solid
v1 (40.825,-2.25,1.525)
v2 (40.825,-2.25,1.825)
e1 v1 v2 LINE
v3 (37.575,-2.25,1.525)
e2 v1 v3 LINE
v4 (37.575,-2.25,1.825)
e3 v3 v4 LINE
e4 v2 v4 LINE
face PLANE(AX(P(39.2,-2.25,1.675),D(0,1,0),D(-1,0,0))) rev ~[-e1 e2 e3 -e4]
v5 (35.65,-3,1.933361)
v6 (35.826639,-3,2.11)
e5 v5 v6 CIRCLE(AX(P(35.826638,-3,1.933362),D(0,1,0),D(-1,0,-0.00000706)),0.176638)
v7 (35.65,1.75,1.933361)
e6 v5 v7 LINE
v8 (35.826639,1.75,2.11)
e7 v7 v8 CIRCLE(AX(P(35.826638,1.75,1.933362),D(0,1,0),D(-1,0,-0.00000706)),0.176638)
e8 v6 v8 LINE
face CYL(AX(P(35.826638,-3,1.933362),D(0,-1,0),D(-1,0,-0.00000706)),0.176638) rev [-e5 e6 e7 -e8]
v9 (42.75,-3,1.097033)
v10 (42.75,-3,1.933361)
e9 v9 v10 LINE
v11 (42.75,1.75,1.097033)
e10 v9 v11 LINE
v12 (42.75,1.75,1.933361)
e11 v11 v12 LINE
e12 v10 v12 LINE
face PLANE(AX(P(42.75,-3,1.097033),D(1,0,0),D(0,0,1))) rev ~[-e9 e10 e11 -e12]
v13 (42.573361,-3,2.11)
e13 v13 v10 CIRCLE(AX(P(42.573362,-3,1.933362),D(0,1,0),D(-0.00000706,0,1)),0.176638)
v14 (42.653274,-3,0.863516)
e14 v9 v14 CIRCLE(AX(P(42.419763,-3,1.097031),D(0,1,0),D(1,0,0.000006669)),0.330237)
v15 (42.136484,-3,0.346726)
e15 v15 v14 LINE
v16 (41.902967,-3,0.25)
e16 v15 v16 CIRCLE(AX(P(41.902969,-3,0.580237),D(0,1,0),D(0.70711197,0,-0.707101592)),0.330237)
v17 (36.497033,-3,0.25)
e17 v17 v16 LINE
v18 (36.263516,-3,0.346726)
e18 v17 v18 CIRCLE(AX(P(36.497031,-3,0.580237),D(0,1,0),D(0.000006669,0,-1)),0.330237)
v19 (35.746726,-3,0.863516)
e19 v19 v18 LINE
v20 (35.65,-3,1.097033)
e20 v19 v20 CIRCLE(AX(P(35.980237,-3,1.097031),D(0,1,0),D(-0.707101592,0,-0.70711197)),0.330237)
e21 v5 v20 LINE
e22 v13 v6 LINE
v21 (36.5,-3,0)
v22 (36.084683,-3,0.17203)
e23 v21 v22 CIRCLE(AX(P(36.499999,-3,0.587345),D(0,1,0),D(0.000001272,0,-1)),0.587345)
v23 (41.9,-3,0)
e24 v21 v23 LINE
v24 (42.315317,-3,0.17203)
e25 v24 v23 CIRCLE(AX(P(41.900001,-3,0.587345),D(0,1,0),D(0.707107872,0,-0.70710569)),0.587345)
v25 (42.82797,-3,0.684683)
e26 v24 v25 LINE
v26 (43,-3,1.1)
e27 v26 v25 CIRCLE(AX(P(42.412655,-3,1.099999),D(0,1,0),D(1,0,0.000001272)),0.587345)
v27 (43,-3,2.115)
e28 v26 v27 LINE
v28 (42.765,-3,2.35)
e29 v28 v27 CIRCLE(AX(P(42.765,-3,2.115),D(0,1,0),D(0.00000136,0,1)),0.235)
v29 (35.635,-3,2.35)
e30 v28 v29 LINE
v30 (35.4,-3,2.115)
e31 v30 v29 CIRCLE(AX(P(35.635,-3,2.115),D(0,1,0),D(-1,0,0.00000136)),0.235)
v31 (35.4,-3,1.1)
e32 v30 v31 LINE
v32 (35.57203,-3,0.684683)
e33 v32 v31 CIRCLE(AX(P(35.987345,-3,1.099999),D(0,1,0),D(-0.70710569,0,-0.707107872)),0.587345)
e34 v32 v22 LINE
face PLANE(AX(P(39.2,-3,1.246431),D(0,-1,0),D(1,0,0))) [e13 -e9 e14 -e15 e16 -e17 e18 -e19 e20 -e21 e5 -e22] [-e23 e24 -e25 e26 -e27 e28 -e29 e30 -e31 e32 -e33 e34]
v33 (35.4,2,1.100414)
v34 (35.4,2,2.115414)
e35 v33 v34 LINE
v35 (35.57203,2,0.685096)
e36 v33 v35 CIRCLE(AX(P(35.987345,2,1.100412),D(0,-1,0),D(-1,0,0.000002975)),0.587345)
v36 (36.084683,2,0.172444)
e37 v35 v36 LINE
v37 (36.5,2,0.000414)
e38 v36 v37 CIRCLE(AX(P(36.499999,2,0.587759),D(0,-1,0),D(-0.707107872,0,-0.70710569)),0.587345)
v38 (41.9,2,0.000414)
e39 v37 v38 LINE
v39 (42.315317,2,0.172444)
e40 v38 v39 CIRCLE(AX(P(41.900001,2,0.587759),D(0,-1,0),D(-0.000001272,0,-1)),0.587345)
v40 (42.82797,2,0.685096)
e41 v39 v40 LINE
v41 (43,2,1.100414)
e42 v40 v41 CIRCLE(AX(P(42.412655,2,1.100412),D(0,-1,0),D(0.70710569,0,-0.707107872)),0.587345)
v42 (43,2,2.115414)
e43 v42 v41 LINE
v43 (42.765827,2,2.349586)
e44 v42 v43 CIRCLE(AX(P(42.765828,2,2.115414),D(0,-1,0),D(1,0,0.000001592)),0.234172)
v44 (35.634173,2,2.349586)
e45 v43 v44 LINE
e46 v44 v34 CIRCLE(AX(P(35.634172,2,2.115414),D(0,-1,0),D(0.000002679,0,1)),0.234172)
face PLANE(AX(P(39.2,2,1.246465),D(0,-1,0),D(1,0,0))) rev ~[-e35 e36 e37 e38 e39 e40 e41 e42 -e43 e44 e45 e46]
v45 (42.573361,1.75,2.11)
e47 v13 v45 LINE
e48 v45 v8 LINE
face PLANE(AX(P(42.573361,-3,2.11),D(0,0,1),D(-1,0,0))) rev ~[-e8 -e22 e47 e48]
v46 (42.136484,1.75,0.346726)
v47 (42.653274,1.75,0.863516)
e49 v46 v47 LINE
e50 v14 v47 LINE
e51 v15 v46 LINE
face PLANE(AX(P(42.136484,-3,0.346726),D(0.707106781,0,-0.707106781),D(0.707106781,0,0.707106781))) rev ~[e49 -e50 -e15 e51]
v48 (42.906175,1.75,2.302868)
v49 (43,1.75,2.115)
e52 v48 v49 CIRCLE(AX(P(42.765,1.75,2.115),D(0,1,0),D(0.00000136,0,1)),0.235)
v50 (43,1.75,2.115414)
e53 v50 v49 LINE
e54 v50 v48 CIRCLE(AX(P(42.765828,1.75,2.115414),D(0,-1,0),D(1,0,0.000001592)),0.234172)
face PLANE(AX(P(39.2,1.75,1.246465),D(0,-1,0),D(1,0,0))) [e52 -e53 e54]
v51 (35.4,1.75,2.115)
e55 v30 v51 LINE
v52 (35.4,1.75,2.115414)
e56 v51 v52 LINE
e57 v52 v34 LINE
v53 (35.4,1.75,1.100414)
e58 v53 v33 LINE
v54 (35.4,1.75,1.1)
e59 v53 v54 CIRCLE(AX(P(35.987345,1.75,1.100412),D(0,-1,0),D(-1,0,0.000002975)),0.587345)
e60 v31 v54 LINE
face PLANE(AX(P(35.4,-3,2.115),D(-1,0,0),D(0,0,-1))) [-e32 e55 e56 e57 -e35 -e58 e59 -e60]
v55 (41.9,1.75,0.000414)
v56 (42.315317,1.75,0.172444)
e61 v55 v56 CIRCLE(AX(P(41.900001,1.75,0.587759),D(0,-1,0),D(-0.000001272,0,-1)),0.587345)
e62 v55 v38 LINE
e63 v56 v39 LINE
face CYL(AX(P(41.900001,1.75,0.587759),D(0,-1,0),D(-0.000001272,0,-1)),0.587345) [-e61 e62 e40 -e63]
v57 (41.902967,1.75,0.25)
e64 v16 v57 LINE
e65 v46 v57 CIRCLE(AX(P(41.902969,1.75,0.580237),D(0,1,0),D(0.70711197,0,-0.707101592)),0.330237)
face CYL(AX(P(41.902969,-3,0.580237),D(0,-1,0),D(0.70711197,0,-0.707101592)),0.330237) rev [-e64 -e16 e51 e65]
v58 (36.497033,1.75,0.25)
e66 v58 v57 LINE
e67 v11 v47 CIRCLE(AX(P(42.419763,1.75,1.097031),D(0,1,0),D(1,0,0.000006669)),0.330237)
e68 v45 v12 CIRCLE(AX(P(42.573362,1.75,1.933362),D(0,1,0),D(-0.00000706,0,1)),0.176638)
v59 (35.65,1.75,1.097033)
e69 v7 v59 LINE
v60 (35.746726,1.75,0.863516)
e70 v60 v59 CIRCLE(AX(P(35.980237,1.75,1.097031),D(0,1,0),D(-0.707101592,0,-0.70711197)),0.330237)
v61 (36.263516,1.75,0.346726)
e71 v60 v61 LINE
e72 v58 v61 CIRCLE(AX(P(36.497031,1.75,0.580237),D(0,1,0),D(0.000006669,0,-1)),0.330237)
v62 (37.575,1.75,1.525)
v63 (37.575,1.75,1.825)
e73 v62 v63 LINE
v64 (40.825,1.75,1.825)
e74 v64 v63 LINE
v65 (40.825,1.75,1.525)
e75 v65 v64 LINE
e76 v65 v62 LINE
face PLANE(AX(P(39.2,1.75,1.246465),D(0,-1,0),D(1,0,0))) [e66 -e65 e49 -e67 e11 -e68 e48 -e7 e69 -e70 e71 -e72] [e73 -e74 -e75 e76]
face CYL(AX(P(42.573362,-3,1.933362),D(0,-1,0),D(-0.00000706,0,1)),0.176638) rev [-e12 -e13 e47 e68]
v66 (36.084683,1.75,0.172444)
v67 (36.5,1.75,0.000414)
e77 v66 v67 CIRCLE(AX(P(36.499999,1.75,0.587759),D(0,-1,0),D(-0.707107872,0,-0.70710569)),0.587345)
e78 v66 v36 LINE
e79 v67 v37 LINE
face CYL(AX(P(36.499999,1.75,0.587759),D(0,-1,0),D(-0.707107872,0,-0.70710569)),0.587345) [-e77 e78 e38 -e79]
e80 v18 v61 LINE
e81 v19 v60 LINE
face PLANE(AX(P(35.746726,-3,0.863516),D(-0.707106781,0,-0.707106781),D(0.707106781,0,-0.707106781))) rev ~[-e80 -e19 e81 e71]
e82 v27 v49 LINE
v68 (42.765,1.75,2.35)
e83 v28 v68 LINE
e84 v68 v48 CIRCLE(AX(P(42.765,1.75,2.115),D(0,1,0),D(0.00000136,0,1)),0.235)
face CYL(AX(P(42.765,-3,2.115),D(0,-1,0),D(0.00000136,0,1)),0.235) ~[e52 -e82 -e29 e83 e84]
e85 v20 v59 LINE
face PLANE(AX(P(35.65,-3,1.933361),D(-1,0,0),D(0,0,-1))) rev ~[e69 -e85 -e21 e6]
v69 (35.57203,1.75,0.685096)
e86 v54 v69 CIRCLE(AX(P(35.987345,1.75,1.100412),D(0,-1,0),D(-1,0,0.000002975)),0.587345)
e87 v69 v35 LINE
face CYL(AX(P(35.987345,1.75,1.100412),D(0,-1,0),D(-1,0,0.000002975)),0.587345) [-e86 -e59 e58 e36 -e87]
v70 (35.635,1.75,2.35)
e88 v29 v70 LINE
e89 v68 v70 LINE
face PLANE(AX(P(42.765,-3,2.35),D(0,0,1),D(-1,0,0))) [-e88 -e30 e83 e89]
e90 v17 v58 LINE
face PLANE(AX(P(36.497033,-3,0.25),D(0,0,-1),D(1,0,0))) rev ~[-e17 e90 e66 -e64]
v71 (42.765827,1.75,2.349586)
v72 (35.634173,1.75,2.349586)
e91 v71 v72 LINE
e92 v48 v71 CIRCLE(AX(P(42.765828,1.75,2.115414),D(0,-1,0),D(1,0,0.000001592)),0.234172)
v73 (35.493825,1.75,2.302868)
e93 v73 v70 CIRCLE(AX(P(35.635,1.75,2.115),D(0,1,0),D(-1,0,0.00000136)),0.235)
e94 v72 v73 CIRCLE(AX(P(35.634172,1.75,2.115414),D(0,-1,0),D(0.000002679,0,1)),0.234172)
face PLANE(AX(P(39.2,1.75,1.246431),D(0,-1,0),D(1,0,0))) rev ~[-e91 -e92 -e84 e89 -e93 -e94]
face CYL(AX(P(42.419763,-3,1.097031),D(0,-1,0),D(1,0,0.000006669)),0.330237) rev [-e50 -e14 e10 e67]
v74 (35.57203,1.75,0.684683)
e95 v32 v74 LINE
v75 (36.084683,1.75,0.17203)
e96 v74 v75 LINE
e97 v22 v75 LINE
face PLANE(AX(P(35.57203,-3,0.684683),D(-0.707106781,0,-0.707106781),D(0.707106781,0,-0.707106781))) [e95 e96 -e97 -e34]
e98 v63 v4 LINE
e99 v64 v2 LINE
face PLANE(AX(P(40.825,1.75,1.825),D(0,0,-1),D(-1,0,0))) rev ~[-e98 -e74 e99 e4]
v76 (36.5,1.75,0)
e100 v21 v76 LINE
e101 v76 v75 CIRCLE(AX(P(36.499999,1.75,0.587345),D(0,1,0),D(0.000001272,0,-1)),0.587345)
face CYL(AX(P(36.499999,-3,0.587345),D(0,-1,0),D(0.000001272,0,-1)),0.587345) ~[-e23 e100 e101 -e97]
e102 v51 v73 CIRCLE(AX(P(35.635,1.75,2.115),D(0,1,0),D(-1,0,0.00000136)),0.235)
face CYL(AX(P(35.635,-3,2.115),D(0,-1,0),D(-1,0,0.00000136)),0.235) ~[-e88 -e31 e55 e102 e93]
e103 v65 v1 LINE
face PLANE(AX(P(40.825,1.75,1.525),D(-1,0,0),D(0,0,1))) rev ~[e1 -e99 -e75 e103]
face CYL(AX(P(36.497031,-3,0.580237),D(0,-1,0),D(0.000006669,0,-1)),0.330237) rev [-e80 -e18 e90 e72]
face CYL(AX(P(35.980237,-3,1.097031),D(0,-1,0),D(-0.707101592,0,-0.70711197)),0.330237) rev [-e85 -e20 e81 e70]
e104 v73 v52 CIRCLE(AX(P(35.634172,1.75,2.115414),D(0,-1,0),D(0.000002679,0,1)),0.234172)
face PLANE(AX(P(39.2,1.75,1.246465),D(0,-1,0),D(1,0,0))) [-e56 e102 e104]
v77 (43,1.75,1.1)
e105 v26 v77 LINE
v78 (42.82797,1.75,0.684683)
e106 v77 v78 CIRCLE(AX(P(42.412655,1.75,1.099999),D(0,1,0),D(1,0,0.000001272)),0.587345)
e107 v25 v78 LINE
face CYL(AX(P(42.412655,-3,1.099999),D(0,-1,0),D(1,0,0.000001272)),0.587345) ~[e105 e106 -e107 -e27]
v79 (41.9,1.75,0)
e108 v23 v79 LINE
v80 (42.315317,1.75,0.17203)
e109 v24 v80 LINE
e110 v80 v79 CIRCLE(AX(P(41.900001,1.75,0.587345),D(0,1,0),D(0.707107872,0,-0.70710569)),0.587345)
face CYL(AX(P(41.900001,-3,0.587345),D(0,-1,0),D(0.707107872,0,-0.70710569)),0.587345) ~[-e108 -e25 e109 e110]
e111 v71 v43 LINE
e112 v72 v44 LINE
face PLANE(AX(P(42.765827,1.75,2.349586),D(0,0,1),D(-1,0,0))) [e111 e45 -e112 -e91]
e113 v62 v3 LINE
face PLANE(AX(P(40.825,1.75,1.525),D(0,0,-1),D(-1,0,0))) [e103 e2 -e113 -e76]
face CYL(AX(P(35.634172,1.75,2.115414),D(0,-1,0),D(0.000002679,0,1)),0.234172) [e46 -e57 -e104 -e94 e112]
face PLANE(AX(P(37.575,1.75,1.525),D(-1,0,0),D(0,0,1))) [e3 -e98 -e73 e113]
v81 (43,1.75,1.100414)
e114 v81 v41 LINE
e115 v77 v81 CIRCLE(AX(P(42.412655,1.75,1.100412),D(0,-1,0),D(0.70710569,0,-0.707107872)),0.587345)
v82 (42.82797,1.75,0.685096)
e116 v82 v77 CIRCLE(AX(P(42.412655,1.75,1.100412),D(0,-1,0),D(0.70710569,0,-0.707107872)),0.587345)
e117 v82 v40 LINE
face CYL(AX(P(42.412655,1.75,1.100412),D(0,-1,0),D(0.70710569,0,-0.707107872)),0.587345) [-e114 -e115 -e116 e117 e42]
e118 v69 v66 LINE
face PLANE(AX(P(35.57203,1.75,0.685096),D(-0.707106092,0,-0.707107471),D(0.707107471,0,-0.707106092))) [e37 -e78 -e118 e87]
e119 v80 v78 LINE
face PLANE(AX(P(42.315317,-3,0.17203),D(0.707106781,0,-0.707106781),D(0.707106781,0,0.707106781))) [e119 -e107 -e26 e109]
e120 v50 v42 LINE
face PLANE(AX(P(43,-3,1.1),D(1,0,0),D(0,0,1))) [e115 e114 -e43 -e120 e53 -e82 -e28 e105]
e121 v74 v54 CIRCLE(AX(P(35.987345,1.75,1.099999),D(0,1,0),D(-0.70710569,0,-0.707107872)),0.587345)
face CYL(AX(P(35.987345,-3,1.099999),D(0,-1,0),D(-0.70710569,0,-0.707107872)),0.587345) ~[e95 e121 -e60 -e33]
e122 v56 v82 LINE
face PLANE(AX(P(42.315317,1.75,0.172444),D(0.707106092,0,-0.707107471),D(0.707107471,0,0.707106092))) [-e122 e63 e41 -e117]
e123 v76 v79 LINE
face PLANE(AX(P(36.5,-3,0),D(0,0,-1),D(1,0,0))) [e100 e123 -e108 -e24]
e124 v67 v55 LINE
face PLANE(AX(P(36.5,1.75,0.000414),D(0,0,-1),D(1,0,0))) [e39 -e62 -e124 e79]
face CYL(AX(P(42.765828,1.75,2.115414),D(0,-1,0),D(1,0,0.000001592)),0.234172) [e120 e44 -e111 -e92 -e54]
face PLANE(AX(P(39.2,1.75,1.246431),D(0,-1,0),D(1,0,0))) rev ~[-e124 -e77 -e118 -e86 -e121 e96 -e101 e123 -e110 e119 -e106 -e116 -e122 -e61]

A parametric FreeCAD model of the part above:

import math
import FreeCAD as App
import Part
import Sketcher

V = App.Vector


def add_polygon(sketch, points):
    """Adds a closed chain of lines whose ends are joined by coincident constraints."""
    first, n = sketch.GeometryCount, len(points)
    for a, b in zip(points, points[1:] + points[:1]):
        sketch.addGeometry(Part.LineSegment(App.Vector(*a, 0), App.Vector(*b, 0)), False)
    for i in range(n):
        sketch.addConstraint(Sketcher.Constraint("Coincident", first + i, 2, first + (i + 1) % n, 1))

doc = App.newDocument("Part")
body = doc.addObject("PartDesign::Body", "Body")

# Sketch on XZ plane
sketch1 = body.newObject("Sketcher::SketchObject", "Sketch")
sketch1.AttachmentSupport = (doc.getObject("XZ_Plane"), [""])
sketch1.MapMode = "FlatFace"
sketch1.AttachmentOffset = App.Placement(V(0, 0, -1.75), App.Rotation())
add_polygon(sketch1, [(1.62, 0.65), (1.62, 0.35), (-1.62, 0.35), (-1.62, 0.65)])  # lines 0-3
sketch1.addConstraint([
    Sketcher.Constraint("Vertical", 0),
    Sketcher.Constraint("Horizontal", 1),
    Sketcher.Constraint("Vertical", 2),
    Sketcher.Constraint("Horizontal", 3),
    Sketcher.Constraint("DistanceY", 0, 2, 0, 1, 0.3),
    Sketcher.Constraint("DistanceX", 1, 2, 1, 1, 3.25),
    Sketcher.Constraint("DistanceY", -1, 1, 0, 2, 0.35),
    Sketcher.Constraint("DistanceX", -1, 1, 0, 2, 1.625),
])
pad1 = body.newObject("PartDesign::Pad", "Pad")
pad1.Profile = sketch1
pad1.Length = 4

# Sketch on XZ plane
sketch2 = body.newObject("Sketcher::SketchObject", "Sketch001")
sketch2.AttachmentSupport = (doc.getObject("XZ_Plane"), [""])
sketch2.MapMode = "FlatFace"
sketch2.AttachmentOffset = App.Placement(V(0, 0, -1.75), App.Rotation())
sketch2.addGeometry([
    Part.LineSegment(V(3.57, 1.17, 0), V(-3.57, 1.17, 0)),  # 0
    Part.ArcOfCircle(Part.Circle(V(-3.57, 0.94, 0), V(0, 0, 1), 0.23), math.radians(90), math.radians(180)),  # 1
    Part.LineSegment(V(-3.8, 0.94, 0), V(-3.8, -0.07, 0)),  # 2
    Part.ArcOfCircle(Part.Circle(V(-3.21, -0.07, 0), V(0, 0, 1), 0.59), math.radians(180), math.radians(225)),  # 3
    Part.LineSegment(V(-3.63, -0.49, 0), V(-3.12, -1, 0)),  # 4
    Part.ArcOfCircle(Part.Circle(V(-2.7, -0.59, 0), V(0, 0, 1), 0.59), math.radians(-135), math.radians(-90)),  # 5
    Part.LineSegment(V(-2.7, -1.17, 0), V(2.7, -1.17, 0)),  # 6
    Part.ArcOfCircle(Part.Circle(V(2.7, -0.59, 0), V(0, 0, 1), 0.59), math.radians(-90), math.radians(-45)),  # 7
    Part.LineSegment(V(3.12, -1, 0), V(3.63, -0.49, 0)),  # 8
    Part.ArcOfCircle(Part.Circle(V(3.21, -0.07, 0), V(0, 0, 1), 0.59), math.radians(-45), math.radians(0)),  # 9
    Part.LineSegment(V(3.8, -0.07, 0), V(3.8, 0.94, 0)),  # 10
    Part.ArcOfCircle(Part.Circle(V(3.57, 0.94, 0), V(0, 0, 1), 0.23), math.radians(0), math.radians(90)),  # 11
], False)
sketch2.addConstraint([
    Sketcher.Constraint("Coincident", 0, 2, 1, 1),
    Sketcher.Constraint("Tangent", 1, 2, 2, 1),
    Sketcher.Constraint("Coincident", 2, 2, 3, 1),
    Sketcher.Constraint("Tangent", 3, 2, 4, 1),
    Sketcher.Constraint("Coincident", 4, 2, 5, 1),
    Sketcher.Constraint("Tangent", 5, 2, 6, 1),
    Sketcher.Constraint("Tangent", 6, 2, 7, 1),
    Sketcher.Constraint("Coincident", 7, 2, 8, 1),
    Sketcher.Constraint("Tangent", 8, 2, 9, 1),
    Sketcher.Constraint("Coincident", 9, 2, 10, 1),
    Sketcher.Constraint("Tangent", 10, 2, 11, 1),
    Sketcher.Constraint("Coincident", 11, 2, 0, 1),
    Sketcher.Constraint("Horizontal", 0),
    Sketcher.Constraint("Vertical", 2),
    Sketcher.Constraint("Horizontal", 6),
    Sketcher.Constraint("Vertical", 10),
    Sketcher.Constraint("Equal", 3, 5),
    Sketcher.Constraint("Equal", 5, 7),
    Sketcher.Constraint("Equal", 7, 9),
    Sketcher.Constraint("Equal", 1, 11),
    Sketcher.Constraint("Symmetric", 3, 3, 9, 3, -2),
    Sketcher.Constraint("Symmetric", 4, 2, 7, 2, -2),
    Sketcher.Constraint("Perpendicular", 4, 8),
    Sketcher.Constraint("Horizontal", 9, 3, 2, 2),
    Sketcher.Constraint("Horizontal", 2, 2, 9, 2),
    Sketcher.Constraint("Vertical", 1, 3, 0, 2),
    Sketcher.Constraint("DistanceX", 6, 1, 6, 2, 5.4),
    Sketcher.Constraint("DistanceX", 1, 2, -1, 1, 3.8),
    Sketcher.Constraint("DistanceY", 2, 2, 2, 1, 1.015),
    Sketcher.Constraint("Distance", 4, 0.725),
    Sketcher.Constraint("Radius", 1, 0.234172),
    Sketcher.Constraint("Radius", 3, 0.587345),
    Sketcher.Constraint("DistanceX", 0, 2, 0, 1, 7.131654),
    Sketcher.Constraint("DistanceY", 5, 3, -1, 1, 0.587241),
])
pad2 = body.newObject("PartDesign::Pad", "Pad001")
pad2.Profile = sketch2
pad2.Length = 0.25
pad2.Reversed = True

# Sketch on XZ plane
sketch3 = body.newObject("Sketcher::SketchObject", "Sketch002")
sketch3.AttachmentSupport = (doc.getObject("XZ_Plane"), [""])
sketch3.MapMode = "FlatFace"
sketch3.AttachmentOffset = App.Placement(V(0, 0, 3), App.Rotation())
sketch3.addGeometry([
    Part.LineSegment(V(-3.56, 1.18, 0), V(3.56, 1.18, 0)),  # 0
    Part.ArcOfCircle(Part.Circle(V(3.56, 0.94, 0), V(0, 0, 1), 0.24), math.radians(0), math.radians(90)),  # 1
    Part.LineSegment(V(3.8, 0.94, 0), V(3.8, -0.07, 0)),  # 2
    Part.ArcOfCircle(Part.Circle(V(3.21, -0.08, 0), V(0, 0, 1), 0.59), math.radians(-45), math.radians(0)),  # 3
    Part.LineSegment(V(3.63, -0.49, 0), V(3.12, -1, 0)),  # 4
    Part.ArcOfCircle(Part.Circle(V(2.7, -0.59, 0), V(0, 0, 1), 0.59), math.radians(-90), math.radians(-45)),  # 5
    Part.LineSegment(V(2.7, -1.18, 0), V(-2.7, -1.18, 0)),  # 6
    Part.ArcOfCircle(Part.Circle(V(-2.7, -0.59, 0), V(0, 0, 1), 0.59), math.radians(-135), math.radians(-90)),  # 7
    Part.LineSegment(V(-3.12, -1, 0), V(-3.63, -0.49, 0)),  # 8
    Part.ArcOfCircle(Part.Circle(V(-3.21, -0.08, 0), V(0, 0, 1), 0.59), math.radians(180), math.radians(225)),  # 9
    Part.LineSegment(V(-3.8, -0.07, 0), V(-3.8, 0.94, 0)),  # 10
    Part.ArcOfCircle(Part.Circle(V(-3.56, 0.94, 0), V(0, 0, 1), 0.24), math.radians(90), math.radians(180)),  # 11
    Part.LineSegment(V(3.37, 0.94, 0), V(-3.37, 0.94, 0)),  # 12
    Part.ArcOfCircle(Part.Circle(V(-3.37, 0.76, 0), V(0, 0, 1), 0.18), math.radians(90), math.radians(180)),  # 13
    Part.LineSegment(V(-3.55, 0.76, 0), V(-3.55, -0.08, 0)),  # 14
    Part.ArcOfCircle(Part.Circle(V(-3.22, -0.08, 0), V(0, 0, 1), 0.33), math.radians(180), math.radians(225)),  # 15
    Part.LineSegment(V(-3.45, -0.31, 0), V(-2.94, -0.83, 0)),  # 16
    Part.ArcOfCircle(Part.Circle(V(-2.7, -0.59, 0), V(0, 0, 1), 0.33), math.radians(-135), math.radians(-90)),  # 17
    Part.LineSegment(V(-2.7, -0.93, 0), V(2.7, -0.93, 0)),  # 18
    Part.ArcOfCircle(Part.Circle(V(2.7, -0.59, 0), V(0, 0, 1), 0.33), math.radians(-90), math.radians(-45)),  # 19
    Part.LineSegment(V(2.94, -0.83, 0), V(3.45, -0.31, 0)),  # 20
    Part.ArcOfCircle(Part.Circle(V(3.22, -0.08, 0), V(0, 0, 1), 0.33), math.radians(-45), math.radians(0)),  # 21
    Part.LineSegment(V(3.55, -0.08, 0), V(3.55, 0.76, 0)),  # 22
    Part.ArcOfCircle(Part.Circle(V(3.37, 0.76, 0), V(0, 0, 1), 0.18), math.radians(0), math.radians(90)),  # 23
], False)
sketch3.addConstraint([
    Sketcher.Constraint("Tangent", 0, 2, 1, 2),
    Sketcher.Constraint("Tangent", 1, 1, 2, 1),
    Sketcher.Constraint("Tangent", 2, 2, 3, 2),
    Sketcher.Constraint("Tangent", 3, 1, 4, 1),
    Sketcher.Constraint("Tangent", 4, 2, 5, 2),
    Sketcher.Constraint("Tangent", 5, 1, 6, 1),
    Sketcher.Constraint("Tangent", 6, 2, 7, 2),
    Sketcher.Constraint("Tangent", 7, 1, 8, 1),
    Sketcher.Constraint("Tangent", 8, 2, 9, 2),
    Sketcher.Constraint("Tangent", 9, 1, 10, 1),
    Sketcher.Constraint("Tangent", 10, 2, 11, 2),
    Sketcher.Constraint("Tangent", 11, 1, 0, 1),
    Sketcher.Constraint("Coincident", 12, 2, 13, 1),
    Sketcher.Constraint("Coincident", 13, 2, 14, 1),
    Sketcher.Constraint("Coincident", 14, 2, 15, 1),
    Sketcher.Constraint("Coincident", 15, 2, 16, 1),
    Sketcher.Constraint("Coincident", 16, 2, 17, 1),
    Sketcher.Constraint("Coincident", 17, 2, 18, 1),
    Sketcher.Constraint("Coincident", 18, 2, 19, 1),
    Sketcher.Constraint("Coincident", 19, 2, 20, 1),
    Sketcher.Constraint("Coincident", 20, 2, 21, 1),
    Sketcher.Constraint("Coincident", 21, 2, 22, 1),
    Sketcher.Constraint("Coincident", 22, 2, 23, 1),
    Sketcher.Constraint("Coincident", 23, 2, 12, 1),
    Sketcher.Constraint("Horizontal", 0),
    Sketcher.Constraint("Vertical", 2),
    Sketcher.Constraint("Horizontal", 6),
    Sketcher.Constraint("Vertical", 10),
    Sketcher.Constraint("Horizontal", 12),
    Sketcher.Constraint("Vertical", 14),
    Sketcher.Constraint("Horizontal", 18),
    Sketcher.Constraint("Vertical", 22),
    Sketcher.Constraint("Equal", 3, 5),
    Sketcher.Constraint("Equal", 5, 7),
    Sketcher.Constraint("Equal", 7, 9),
    Sketcher.Constraint("Equal", 1, 11),
    Sketcher.Constraint("Equal", 15, 17),
    Sketcher.Constraint("Equal", 17, 19),
    Sketcher.Constraint("Equal", 19, 21),
    Sketcher.Constraint("Equal", 13, 23),
    Sketcher.Constraint("Symmetric", 3, 3, 9, 3, -2),
    Sketcher.Constraint("Symmetric", 15, 3, 21, 3, -2),
    Sketcher.Constraint("Symmetric", 16, 2, 19, 2, -2),
    Sketcher.Constraint("Perpendicular", 4, 8),
    Sketcher.Constraint("Parallel", 8, 16),
    Sketcher.Constraint("Perpendicular", 16, 20),
    Sketcher.Constraint("Horizontal", 23, 3, 13, 2),
    Sketcher.Constraint("Horizontal", 15, 2, 20, 2),
    Sketcher.Constraint("Horizontal", 14, 2, 21, 2),
    Sketcher.Constraint("Horizontal", 13, 2, 22, 2),
    Sketcher.Constraint("Vertical", 13, 3, 12, 2),
    Sketcher.Constraint("DistanceX", 6, 2, 6, 1, 5.4),
    Sketcher.Constraint("Radius", 1, 0.235),
    Sketcher.Constraint("DistanceX", 0, 1, 0, 2, 7.13),
    Sketcher.Constraint("DistanceY", 2, 2, 2, 1, 1.015),
    Sketcher.Constraint("DistanceY", -1, 1, 1, 3, 0.94),
    Sketcher.Constraint("DistanceX", 13, 2, -1, 1, 3.55),
    Sketcher.Constraint("DistanceY", 12, 2, 11, 1, 0.24),
    Sketcher.Constraint("DistanceY", 6, 2, 17, 2, 0.25),
    Sketcher.Constraint("Distance", 4, 0.725001),
    Sketcher.Constraint("Radius", 13, 0.176638),
    Sketcher.Constraint("Radius", 15, 0.330237),
    Sketcher.Constraint("DistanceX", 19, 3, 3, 1, 0.925001),
    Sketcher.Constraint("Distance", 16, 0.730851),
    Sketcher.Constraint("DistanceX", 12, 2, 12, 1, 6.746722),
    Sketcher.Constraint("DistanceX", 18, 1, 18, 2, 5.405934),
    Sketcher.Constraint("DistanceY", 14, 2, 14, 1, 0.836328),
    Sketcher.Constraint("DistanceX", 15, 2, 15, 3, 0.233511),
    Sketcher.Constraint("DistanceX", 7, 1, 17, 2, 0.41235),
])
pad3 = body.newObject("PartDesign::Pad", "Pad002")
pad3.Profile = sketch3
pad3.Length = 4.75
pad3.Reversed = True
body2 = doc.addObject("PartDesign::Body", "Body001")
doc.recompute()

body.Placement = App.Placement(V(39.2, 0, 1.175), App.Rotation(V(0, 0, 1), 0))
boolean = body2.newObject("PartDesign::Boolean", "Boolean")
boolean.Type = "Fuse"
boolean.addObjects([body])

doc.recompute()
